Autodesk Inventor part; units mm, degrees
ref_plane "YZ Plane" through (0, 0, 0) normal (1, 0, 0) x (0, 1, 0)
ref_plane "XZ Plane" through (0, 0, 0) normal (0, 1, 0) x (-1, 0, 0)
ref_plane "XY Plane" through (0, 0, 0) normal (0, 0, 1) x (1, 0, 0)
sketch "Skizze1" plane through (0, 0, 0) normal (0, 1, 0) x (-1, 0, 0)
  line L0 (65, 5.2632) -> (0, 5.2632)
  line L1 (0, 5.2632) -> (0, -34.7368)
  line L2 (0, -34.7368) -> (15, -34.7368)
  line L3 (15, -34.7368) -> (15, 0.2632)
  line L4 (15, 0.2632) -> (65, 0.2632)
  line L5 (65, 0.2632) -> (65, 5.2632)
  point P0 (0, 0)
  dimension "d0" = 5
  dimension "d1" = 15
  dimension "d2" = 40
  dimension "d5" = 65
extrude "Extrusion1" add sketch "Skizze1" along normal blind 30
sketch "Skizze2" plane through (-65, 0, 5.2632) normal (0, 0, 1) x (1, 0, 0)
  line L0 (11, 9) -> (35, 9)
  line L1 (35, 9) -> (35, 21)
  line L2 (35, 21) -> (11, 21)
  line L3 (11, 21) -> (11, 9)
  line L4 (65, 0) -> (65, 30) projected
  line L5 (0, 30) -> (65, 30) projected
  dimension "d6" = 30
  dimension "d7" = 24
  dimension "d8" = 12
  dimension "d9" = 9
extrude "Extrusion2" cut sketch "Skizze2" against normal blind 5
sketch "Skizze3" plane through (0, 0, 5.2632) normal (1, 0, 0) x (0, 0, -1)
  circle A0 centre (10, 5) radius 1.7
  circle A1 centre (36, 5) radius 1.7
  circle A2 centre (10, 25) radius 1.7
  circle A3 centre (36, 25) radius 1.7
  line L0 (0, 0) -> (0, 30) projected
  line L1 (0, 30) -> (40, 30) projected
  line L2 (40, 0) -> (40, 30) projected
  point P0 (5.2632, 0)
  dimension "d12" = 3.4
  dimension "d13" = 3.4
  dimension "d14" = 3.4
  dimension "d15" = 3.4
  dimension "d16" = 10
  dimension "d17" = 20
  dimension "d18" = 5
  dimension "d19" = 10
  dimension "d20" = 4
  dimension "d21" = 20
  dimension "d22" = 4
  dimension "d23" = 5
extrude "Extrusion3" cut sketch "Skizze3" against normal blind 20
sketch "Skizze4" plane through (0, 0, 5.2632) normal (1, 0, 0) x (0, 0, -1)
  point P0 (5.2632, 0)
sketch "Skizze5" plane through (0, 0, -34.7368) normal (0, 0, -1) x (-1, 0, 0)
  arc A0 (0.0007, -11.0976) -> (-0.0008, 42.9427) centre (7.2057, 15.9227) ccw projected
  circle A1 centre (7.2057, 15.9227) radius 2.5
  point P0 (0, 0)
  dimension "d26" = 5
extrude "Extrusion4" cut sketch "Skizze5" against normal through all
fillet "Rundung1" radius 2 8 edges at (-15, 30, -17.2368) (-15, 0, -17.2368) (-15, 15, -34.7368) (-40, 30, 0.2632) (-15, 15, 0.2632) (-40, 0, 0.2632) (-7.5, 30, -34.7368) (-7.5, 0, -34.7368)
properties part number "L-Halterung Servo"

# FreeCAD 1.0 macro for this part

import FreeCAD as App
import Part
import Sketcher
from FreeCAD import Vector


def edges_at(feature, points):
    """Names of the edges that pass closest to the given points."""
    edges = feature.Shape.Edges
    near = lambda p: min(range(len(edges)), key=lambda i: edges[i].distToShape(Part.Vertex(*p))[0])
    return sorted({f"Edge{near(p) + 1}" for p in points})

doc = App.newDocument("Part")
params = doc.addObject("Spreadsheet::Sheet", "Params")
for row, (alias, value) in enumerate([
    ("sketch1_width", "65 mm"),
    ("sketch1_width2", "15 mm"),
    ("sketch1_height", "5 mm"),
    ("sketch1_height2", "40 mm"),
    ("pad1_length", "30 mm"),
    ("sketch2_width", "24 mm"),
    ("sketch2_height", "12 mm"),
    ("pocket1_length", "5 mm"),
    ("sketch3_diameter", "3.4 mm"),
    ("pocket2_length", "20 mm"),
    ("sketch4_diameter", "5 mm"),
    ("fillet_radius", "2 mm"),
], start=1):
    params.set(f"A{row}", alias)
    params.set(f"B{row}", "=" + value)
    params.setAlias(f"B{row}", alias)

body = doc.addObject("PartDesign::Body", "Body")

sketch1 = doc.addObject("Sketcher::SketchObject", "Sketch")
body.addObject(sketch1)
sketch1.AttachmentSupport = (doc.XZ_Plane, [""])
sketch1.MapMode = "FlatFace"
sketch1.addGeometry(Part.LineSegment(Vector(-65, 0.2632, 0), Vector(-65, 5.2632, 0)), False)
sketch1.addGeometry(Part.LineSegment(Vector(-65, 5.2632, 0), Vector(0, 5.2632, 0)), False)
sketch1.addGeometry(Part.LineSegment(Vector(0, 5.2632, 0), Vector(0, -34.7368, 0)), False)
sketch1.addGeometry(Part.LineSegment(Vector(0, -34.7368, 0), Vector(-15, -34.7368, 0)), False)
sketch1.addGeometry(Part.LineSegment(Vector(-15, -34.7368, 0), Vector(-15, 0.2632, 0)), False)
sketch1.addGeometry(Part.LineSegment(Vector(-15, 0.2632, 0), Vector(-65, 0.2632, 0)), False)
sketch1.addConstraint(Sketcher.Constraint("Coincident", 0, 2, 1, 1))
sketch1.addConstraint(Sketcher.Constraint("Coincident", 1, 2, 2, 1))
sketch1.addConstraint(Sketcher.Constraint("Coincident", 2, 2, 3, 1))
sketch1.addConstraint(Sketcher.Constraint("Coincident", 3, 2, 4, 1))
sketch1.addConstraint(Sketcher.Constraint("Coincident", 4, 2, 5, 1))
sketch1.addConstraint(Sketcher.Constraint("Coincident", 5, 2, 0, 1))
sketch1.addConstraint(Sketcher.Constraint("Vertical", 0))
sketch1.addConstraint(Sketcher.Constraint("Horizontal", 1))
sketch1.addConstraint(Sketcher.Constraint("Vertical", 2))
sketch1.addConstraint(Sketcher.Constraint("Horizontal", 3))
sketch1.addConstraint(Sketcher.Constraint("Vertical", 4))
sketch1.addConstraint(Sketcher.Constraint("Horizontal", 5))
sketch1.addConstraint(Sketcher.Constraint("PointOnObject", 1, 2, -2))
sketch1.addConstraint(Sketcher.Constraint("DistanceX", 1, 1, 1, 2, 65.0))
sketch1.addConstraint(Sketcher.Constraint("DistanceX", 3, 2, 3, 1, 15.0))
sketch1.addConstraint(Sketcher.Constraint("DistanceY", 0, 1, 0, 2, 5.0))
sketch1.addConstraint(Sketcher.Constraint("DistanceY", 2, 2, 2, 1, 40.0))
sketch1.addConstraint(Sketcher.Constraint("DistanceY", -1, 1, 0, 2, 5.2632))
sketch1.setExpression("Constraints[13]", "Params.sketch1_width")
sketch1.setExpression("Constraints[14]", "Params.sketch1_width2")
sketch1.setExpression("Constraints[15]", "Params.sketch1_height")
sketch1.setExpression("Constraints[16]", "Params.sketch1_height2")
pad1 = doc.addObject("PartDesign::Pad", "Pad")
body.addObject(pad1)
pad1.Profile = sketch1
pad1.setExpression("Length", "Params.pad1_length")
pad1.Reversed = True

sketch2 = doc.addObject("Sketcher::SketchObject", "Sketch001")
body.addObject(sketch2)
sketch2.AttachmentSupport = (doc.XY_Plane, [""])
sketch2.MapMode = "FlatFace"
sketch2.AttachmentOffset = App.Placement(Vector(0, 0, 5.2632), App.Rotation())
sketch2.addGeometry(Part.LineSegment(Vector(-54, 21, 0), Vector(-54, 9, 0)), False)
sketch2.addGeometry(Part.LineSegment(Vector(-54, 9, 0), Vector(-30, 9, 0)), False)
sketch2.addGeometry(Part.LineSegment(Vector(-30, 9, 0), Vector(-30, 21, 0)), False)
sketch2.addGeometry(Part.LineSegment(Vector(-30, 21, 0), Vector(-54, 21, 0)), False)
sketch2.addConstraint(Sketcher.Constraint("Coincident", 0, 2, 1, 1))
sketch2.addConstraint(Sketcher.Constraint("Coincident", 1, 2, 2, 1))
sketch2.addConstraint(Sketcher.Constraint("Coincident", 2, 2, 3, 1))
sketch2.addConstraint(Sketcher.Constraint("Coincident", 3, 2, 0, 1))
sketch2.addConstraint(Sketcher.Constraint("Vertical", 0))
sketch2.addConstraint(Sketcher.Constraint("Horizontal", 1))
sketch2.addConstraint(Sketcher.Constraint("Vertical", 2))
sketch2.addConstraint(Sketcher.Constraint("Horizontal", 3))
sketch2.addConstraint(Sketcher.Constraint("DistanceX", 1, 1, 1, 2, 24.0))
sketch2.addConstraint(Sketcher.Constraint("DistanceY", 0, 2, 0, 1, 12.0))
sketch2.addConstraint(Sketcher.Constraint("DistanceY", -1, 1, 0, 2, 9.0))
sketch2.addConstraint(Sketcher.Constraint("DistanceX", 1, 2, -1, 1, 30.0))
sketch2.setExpression("Constraints[8]", "Params.sketch2_width")
sketch2.setExpression("Constraints[9]", "Params.sketch2_height")
pocket1 = doc.addObject("PartDesign::Pocket", "Pocket")
body.addObject(pocket1)
pocket1.Profile = sketch2
pocket1.setExpression("Length", "Params.pocket1_length")

sketch3 = doc.addObject("Sketcher::SketchObject", "Sketch002")
body.addObject(sketch3)
sketch3.AttachmentSupport = (doc.YZ_Plane, [""])
sketch3.MapMode = "FlatFace"
sketch3.addGeometry(Part.Circle(Vector(5, -4.7368, 0), Vector(0, 0, 1), 1.7), False)
sketch3.addGeometry(Part.Circle(Vector(5, -30.7368, 0), Vector(0, 0, 1), 1.7), False)
sketch3.addGeometry(Part.Circle(Vector(25, -4.7368, 0), Vector(0, 0, 1), 1.7), False)
sketch3.addGeometry(Part.Circle(Vector(25, -30.7368, 0), Vector(0, 0, 1), 1.7), False)
sketch3.addConstraint(Sketcher.Constraint("Equal", 0, 1))
sketch3.addConstraint(Sketcher.Constraint("Equal", 1, 2))
sketch3.addConstraint(Sketcher.Constraint("Equal", 2, 3))
sketch3.addConstraint(Sketcher.Constraint("Horizontal", 0, 3, 2, 3))
sketch3.addConstraint(Sketcher.Constraint("Horizontal", 1, 3, 3, 3))
sketch3.addConstraint(Sketcher.Constraint("Vertical", 0, 3, 1, 3))
sketch3.addConstraint(Sketcher.Constraint("Vertical", 2, 3, 3, 3))
sketch3.addConstraint(Sketcher.Constraint("Diameter", 0, 3.4))
sketch3.addConstraint(Sketcher.Constraint("DistanceX", -1, 1, 0, 3, 5.0))
sketch3.addConstraint(Sketcher.Constraint("DistanceX", 0, 3, 2, 3, 20.0))
sketch3.addConstraint(Sketcher.Constraint("DistanceY", 1, 3, 0, 3, 26.0))
sketch3.addConstraint(Sketcher.Constraint("DistanceY", 0, 3, -1, 1, 4.7368))
sketch3.setExpression("Constraints[7]", "Params.sketch3_diameter")
pocket2 = doc.addObject("PartDesign::Pocket", "Pocket001")
body.addObject(pocket2)
pocket2.Profile = sketch3
pocket2.setExpression("Length", "Params.pocket2_length")

sketch4 = doc.addObject("Sketcher::SketchObject", "Sketch003")
body.addObject(sketch4)
sketch4.AttachmentSupport = (doc.XY_Plane, [""])
sketch4.MapMode = "FlatFace"
sketch4.AttachmentOffset = App.Placement(Vector(0, 0, -34.7368), App.Rotation())
sketch4.addGeometry(Part.Circle(Vector(-7.2057, 15.9227, 0), Vector(0, 0, 1), 2.5), False)
sketch4.addConstraint(Sketcher.Constraint("Diameter", 0, 5.0))
sketch4.addConstraint(Sketcher.Constraint("DistanceX", 0, 3, -1, 1, 7.2057))
sketch4.addConstraint(Sketcher.Constraint("DistanceY", -1, 1, 0, 3, 15.9227))
sketch4.setExpression("Constraints[0]", "Params.sketch4_diameter")
pocket3 = doc.addObject("PartDesign::Pocket", "Pocket002")
body.addObject(pocket3)
pocket3.Profile = sketch4
pocket3.Type = "ThroughAll"
pocket3.Reversed = True
doc.recompute()

fillet = doc.addObject("PartDesign::Fillet", "Fillet")
body.addObject(fillet)
fillet.Base = (pocket3, edges_at(pocket3, [
    (-15, 30, -17.237),
    (-15, 0, -17.237),
    (-15, 15, -34.737),
    (-40, 30, 0.263),
    (-15, 15, 0.263),
    (-40, 0, 0.263),
    (-7.5, 30, -34.737),
    (-7.5, 0, -34.737),
]))
fillet.setExpression("Radius", "Params.fillet_radius")

doc.recompute()
